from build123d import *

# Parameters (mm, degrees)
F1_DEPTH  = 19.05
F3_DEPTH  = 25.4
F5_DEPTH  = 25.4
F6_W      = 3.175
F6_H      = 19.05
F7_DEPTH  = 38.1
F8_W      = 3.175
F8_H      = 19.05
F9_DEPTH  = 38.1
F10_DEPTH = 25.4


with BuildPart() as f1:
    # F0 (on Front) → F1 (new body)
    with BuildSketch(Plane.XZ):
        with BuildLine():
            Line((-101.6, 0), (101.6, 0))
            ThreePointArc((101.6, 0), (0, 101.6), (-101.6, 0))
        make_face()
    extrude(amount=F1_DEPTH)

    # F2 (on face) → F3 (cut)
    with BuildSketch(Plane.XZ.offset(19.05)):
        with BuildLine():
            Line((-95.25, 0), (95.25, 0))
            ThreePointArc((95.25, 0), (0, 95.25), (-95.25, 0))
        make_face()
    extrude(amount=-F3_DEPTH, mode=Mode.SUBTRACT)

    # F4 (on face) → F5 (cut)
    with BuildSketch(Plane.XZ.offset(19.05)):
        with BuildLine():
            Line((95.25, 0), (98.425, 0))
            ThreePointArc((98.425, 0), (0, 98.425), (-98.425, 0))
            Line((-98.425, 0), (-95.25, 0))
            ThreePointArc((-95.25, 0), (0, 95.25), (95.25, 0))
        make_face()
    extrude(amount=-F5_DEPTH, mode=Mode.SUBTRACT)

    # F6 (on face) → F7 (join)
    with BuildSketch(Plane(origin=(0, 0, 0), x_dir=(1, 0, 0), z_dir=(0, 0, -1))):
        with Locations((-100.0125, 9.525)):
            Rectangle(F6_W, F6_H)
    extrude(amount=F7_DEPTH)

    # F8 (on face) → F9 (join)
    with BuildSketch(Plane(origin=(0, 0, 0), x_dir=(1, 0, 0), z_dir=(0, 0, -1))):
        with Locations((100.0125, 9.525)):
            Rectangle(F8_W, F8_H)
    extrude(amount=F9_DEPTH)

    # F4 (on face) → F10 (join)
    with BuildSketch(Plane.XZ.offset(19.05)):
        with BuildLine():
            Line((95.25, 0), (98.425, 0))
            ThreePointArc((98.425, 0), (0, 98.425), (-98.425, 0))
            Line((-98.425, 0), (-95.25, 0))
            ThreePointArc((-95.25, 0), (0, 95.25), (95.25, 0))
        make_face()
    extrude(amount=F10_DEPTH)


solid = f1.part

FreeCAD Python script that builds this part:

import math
import FreeCAD as App
import Part
import Sketcher

V = App.Vector
Q = App.Units.Quantity


def add_polygon(sketch, points):
    """Adds a closed chain of lines whose ends are joined by coincident constraints."""
    first, n = sketch.GeometryCount, len(points)
    for a, b in zip(points, points[1:] + points[:1]):
        sketch.addGeometry(Part.LineSegment(App.Vector(*a, 0), App.Vector(*b, 0)), False)
    for i in range(n):
        sketch.addConstraint(Sketcher.Constraint("Coincident", first + i, 2, first + (i + 1) % n, 1))

doc = App.newDocument("Part")
body = doc.addObject("PartDesign::Body", "Body")
body.AllowCompound = True

# Sketch on XZ plane
sketch1 = doc.addObject("Sketcher::SketchObject", "Sketch")
body.addObject(sketch1)
sketch1.AttachmentSupport = (doc.XZ_Plane, [""])
sketch1.MapMode = "FlatFace"
sketch1.addGeometry(Part.LineSegment(V(-101.6, 0, 0), V(101.6, 0, 0)), False)
sketch1.addGeometry(Part.ArcOfCircle(Part.Circle(V(0, 0, 0), V(0, 0, 1), 101.6), math.radians(0), math.radians(180)), False)
sketch1.addConstraint(Sketcher.Constraint("Coincident", 0, 1, 1, 2))
sketch1.addConstraint(Sketcher.Constraint("Coincident", 1, 1, 0, 2))
sketch1.addConstraint(Sketcher.Constraint("Horizontal", 0))
sketch1.addConstraint(Sketcher.Constraint("Coincident", 1, 3, -1, 1))
sketch1.addConstraint(Sketcher.Constraint("PointOnObject", 0, 1, -1))
sketch1.addConstraint(Sketcher.Constraint("Radius", 1, Q("4 in")))
pad1 = doc.addObject("PartDesign::Pad", "Pad")
body.addObject(pad1)
pad1.Profile = sketch1
pad1.Length = Q("0.75 in")

# Sketch on XZ plane
sketch2 = doc.addObject("Sketcher::SketchObject", "Sketch001")
body.addObject(sketch2)
sketch2.AttachmentSupport = (doc.XZ_Plane, [""])
sketch2.MapMode = "FlatFace"
sketch2.AttachmentOffset = App.Placement(V(0, 0, 0.75 * 25.4), App.Rotation())
sketch2.addGeometry(Part.LineSegment(V(-95.25, 0, 0), V(95.25, 0, 0)), False)
sketch2.addGeometry(Part.ArcOfCircle(Part.Circle(V(0, 0, 0), V(0, 0, 1), 95.25), math.radians(0), math.radians(180)), False)
sketch2.addConstraint(Sketcher.Constraint("Coincident", 0, 1, 1, 2))
sketch2.addConstraint(Sketcher.Constraint("Coincident", 1, 1, 0, 2))
sketch2.addConstraint(Sketcher.Constraint("Horizontal", 0))
sketch2.addConstraint(Sketcher.Constraint("Coincident", 1, 3, -1, 1))
sketch2.addConstraint(Sketcher.Constraint("PointOnObject", 0, 1, -1))
sketch2.addConstraint(Sketcher.Constraint("Radius", 1, Q("3.75 in")))
pocket1 = doc.addObject("PartDesign::Pocket", "Pocket")
body.addObject(pocket1)
pocket1.Profile = sketch2
pocket1.Length = Q("1 in")

# Sketch on XZ plane
sketch3 = doc.addObject("Sketcher::SketchObject", "Sketch002")
body.addObject(sketch3)
sketch3.AttachmentSupport = (doc.XZ_Plane, [""])
sketch3.MapMode = "FlatFace"
sketch3.AttachmentOffset = App.Placement(V(0, 0, 0.75 * 25.4), App.Rotation())
sketch3.addGeometry(Part.LineSegment(V(95.25, 0, 0), V(98.425, 0, 0)), False)
sketch3.addGeometry(Part.ArcOfCircle(Part.Circle(V(0, 0, 0), V(0, 0, 1), 98.425), math.radians(0), math.radians(180)), False)
sketch3.addGeometry(Part.LineSegment(V(-98.425, 0, 0), V(-95.25, 0, 0)), False)
sketch3.addGeometry(Part.ArcOfCircle(Part.Circle(V(0, 0, 0), V(0, 0, 1), 95.25), math.radians(0), math.radians(180)), False)
sketch3.addConstraint(Sketcher.Constraint("Coincident", 0, 2, 1, 1))
sketch3.addConstraint(Sketcher.Constraint("Coincident", 1, 2, 2, 1))
sketch3.addConstraint(Sketcher.Constraint("Coincident", 2, 2, 3, 2))
sketch3.addConstraint(Sketcher.Constraint("Coincident", 3, 1, 0, 1))
sketch3.addConstraint(Sketcher.Constraint("Horizontal", 0))
sketch3.addConstraint(Sketcher.Constraint("Horizontal", 2))
sketch3.addConstraint(Sketcher.Constraint("Coincident", 1, 3, -1, 1))
sketch3.addConstraint(Sketcher.Constraint("Coincident", 3, 3, -1, 1))
sketch3.addConstraint(Sketcher.Constraint("PointOnObject", 0, 2, -1))
sketch3.addConstraint(Sketcher.Constraint("PointOnObject", 1, 2, -1))
sketch3.addConstraint(Sketcher.Constraint("Radius", 3, Q("3.75 in")))
sketch3.addConstraint(Sketcher.Constraint("Radius", 1, Q("3.875 in")))
pocket2 = doc.addObject("PartDesign::Pocket", "Pocket001")
body.addObject(pocket2)
pocket2.Profile = sketch3
pocket2.Length = Q("1 in")

# Sketch on XY plane
sketch4 = doc.addObject("Sketcher::SketchObject", "Sketch003")
body.addObject(sketch4)
sketch4.AttachmentSupport = (doc.XY_Plane, [""])
sketch4.MapMode = "FlatFace"
add_polygon(sketch4, [(-101.6, -19.05), (-101.6, 0), (-98.425, 0), (-98.425, -19.05)])  # lines 0-3
sketch4.addConstraint(Sketcher.Constraint("Vertical", 0))
sketch4.addConstraint(Sketcher.Constraint("Horizontal", 1))
sketch4.addConstraint(Sketcher.Constraint("Vertical", 2))
sketch4.addConstraint(Sketcher.Constraint("Horizontal", 3))
sketch4.addConstraint(Sketcher.Constraint("PointOnObject", 0, 2, -1))
sketch4.addConstraint(Sketcher.Constraint("DistanceX", 0, 2, -1, 1, Q("4 in")))
sketch4.addConstraint(Sketcher.Constraint("DistanceY", 0, 1, 0, 2, Q("0.75 in")))
sketch4.addConstraint(Sketcher.Constraint("DistanceX", 1, 1, 1, 2, Q("0.125 in")))
pad2 = doc.addObject("PartDesign::Pad", "Pad001")
body.addObject(pad2)
pad2.Profile = sketch4
pad2.Length = Q("1.5 in")
pad2.Reversed = True

# Sketch on XY plane
sketch5 = doc.addObject("Sketcher::SketchObject", "Sketch004")
body.addObject(sketch5)
sketch5.AttachmentSupport = (doc.XY_Plane, [""])
sketch5.MapMode = "FlatFace"
add_polygon(sketch5, [(98.425, -19.05), (98.425, 0), (101.6, 0), (101.6, -19.05)])  # lines 0-3
sketch5.addConstraint(Sketcher.Constraint("Vertical", 0))
sketch5.addConstraint(Sketcher.Constraint("Horizontal", 1))
sketch5.addConstraint(Sketcher.Constraint("Vertical", 2))
sketch5.addConstraint(Sketcher.Constraint("Horizontal", 3))
sketch5.addConstraint(Sketcher.Constraint("PointOnObject", 0, 2, -1))
sketch5.addConstraint(Sketcher.Constraint("DistanceX", -1, 1, 1, 2, Q("4 in")))
sketch5.addConstraint(Sketcher.Constraint("DistanceY", 0, 1, 0, 2, Q("0.75 in")))
sketch5.addConstraint(Sketcher.Constraint("DistanceX", 1, 1, 1, 2, Q("0.125 in")))
pad3 = doc.addObject("PartDesign::Pad", "Pad002")
body.addObject(pad3)
pad3.Profile = sketch5
pad3.Length = Q("1.5 in")
pad3.Reversed = True

# Sketch on XZ plane
sketch6 = doc.addObject("Sketcher::SketchObject", "Sketch005")
body.addObject(sketch6)
sketch6.AttachmentSupport = (doc.XZ_Plane, [""])
sketch6.MapMode = "FlatFace"
sketch6.AttachmentOffset = App.Placement(V(0, 0, 0.75 * 25.4), App.Rotation())
sketch6.addGeometry(Part.LineSegment(V(95.25, 0, 0), V(98.425, 0, 0)), False)
sketch6.addGeometry(Part.ArcOfCircle(Part.Circle(V(0, 0, 0), V(0, 0, 1), 98.425), math.radians(0), math.radians(180)), False)
sketch6.addGeometry(Part.LineSegment(V(-98.425, 0, 0), V(-95.25, 0, 0)), False)
sketch6.addGeometry(Part.ArcOfCircle(Part.Circle(V(0, 0, 0), V(0, 0, 1), 95.25), math.radians(0), math.radians(180)), False)
sketch6.addConstraint(Sketcher.Constraint("Coincident", 0, 2, 1, 1))
sketch6.addConstraint(Sketcher.Constraint("Coincident", 1, 2, 2, 1))
sketch6.addConstraint(Sketcher.Constraint("Coincident", 2, 2, 3, 2))
sketch6.addConstraint(Sketcher.Constraint("Coincident", 3, 1, 0, 1))
sketch6.addConstraint(Sketcher.Constraint("Horizontal", 0))
sketch6.addConstraint(Sketcher.Constraint("Horizontal", 2))
sketch6.addConstraint(Sketcher.Constraint("Coincident", 1, 3, -1, 1))
sketch6.addConstraint(Sketcher.Constraint("Coincident", 3, 3, -1, 1))
sketch6.addConstraint(Sketcher.Constraint("PointOnObject", 0, 2, -1))
sketch6.addConstraint(Sketcher.Constraint("PointOnObject", 1, 2, -1))
sketch6.addConstraint(Sketcher.Constraint("Radius", 3, Q("3.75 in")))
sketch6.addConstraint(Sketcher.Constraint("Radius", 1, Q("3.875 in")))
pad4 = doc.addObject("PartDesign::Pad", "Pad003")
body.addObject(pad4)
pad4.Profile = sketch6
pad4.Length = Q("1 in")

doc.recompute()
